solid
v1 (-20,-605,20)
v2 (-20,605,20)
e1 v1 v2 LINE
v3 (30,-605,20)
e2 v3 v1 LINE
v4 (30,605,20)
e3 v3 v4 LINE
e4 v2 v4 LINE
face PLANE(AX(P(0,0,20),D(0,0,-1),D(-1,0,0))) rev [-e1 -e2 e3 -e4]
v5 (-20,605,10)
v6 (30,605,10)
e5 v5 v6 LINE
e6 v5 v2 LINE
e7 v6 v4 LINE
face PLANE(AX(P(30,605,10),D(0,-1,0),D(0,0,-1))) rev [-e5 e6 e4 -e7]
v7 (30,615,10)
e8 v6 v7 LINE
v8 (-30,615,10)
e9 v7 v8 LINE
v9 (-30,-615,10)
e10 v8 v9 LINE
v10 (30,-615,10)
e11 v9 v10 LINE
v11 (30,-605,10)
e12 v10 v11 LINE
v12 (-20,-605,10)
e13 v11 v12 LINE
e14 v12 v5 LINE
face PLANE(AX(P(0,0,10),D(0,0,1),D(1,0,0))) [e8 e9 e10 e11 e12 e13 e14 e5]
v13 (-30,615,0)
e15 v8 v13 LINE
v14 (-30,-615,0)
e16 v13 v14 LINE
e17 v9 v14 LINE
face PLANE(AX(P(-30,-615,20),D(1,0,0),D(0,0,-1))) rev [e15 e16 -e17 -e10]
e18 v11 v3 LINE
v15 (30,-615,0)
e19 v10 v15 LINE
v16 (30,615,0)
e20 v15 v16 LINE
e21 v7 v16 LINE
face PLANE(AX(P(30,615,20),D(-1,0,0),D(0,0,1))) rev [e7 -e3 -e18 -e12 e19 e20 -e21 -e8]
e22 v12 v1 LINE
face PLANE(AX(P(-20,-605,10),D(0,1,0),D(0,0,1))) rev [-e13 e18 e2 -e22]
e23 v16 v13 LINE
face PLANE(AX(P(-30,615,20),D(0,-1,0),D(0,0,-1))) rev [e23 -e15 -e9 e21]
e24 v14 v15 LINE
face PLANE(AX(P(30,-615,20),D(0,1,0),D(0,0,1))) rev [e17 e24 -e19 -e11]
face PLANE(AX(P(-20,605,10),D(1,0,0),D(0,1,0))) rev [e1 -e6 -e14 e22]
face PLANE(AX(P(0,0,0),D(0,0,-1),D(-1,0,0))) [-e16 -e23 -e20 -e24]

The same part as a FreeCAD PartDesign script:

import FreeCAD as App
import Part
import Sketcher
from FreeCAD import Vector
Q = App.Units.Quantity

doc = App.newDocument("Part")
body = doc.addObject("PartDesign::Body", "Body")

sketch1 = body.newObject("Sketcher::SketchObject", "Sketch")
sketch1.AttachmentSupport = (doc.getObject("XY_Plane"), [""])
sketch1.MapMode = "FlatFace"
sketch1.addGeometry([
    Part.LineSegment(Vector(-30, 615, 0), Vector(-30, -615, 0)),
    Part.LineSegment(Vector(-30, -615, 0), Vector(30, -615, 0)),
    Part.LineSegment(Vector(30, -615, 0), Vector(30, 615, 0)),
    Part.LineSegment(Vector(30, 615, 0), Vector(-30, 615, 0)),
], False)
sketch1.addConstraint([
    Sketcher.Constraint("Coincident", 0, 2, 1, 1),
    Sketcher.Constraint("Coincident", 1, 2, 2, 1),
    Sketcher.Constraint("Coincident", 2, 2, 3, 1),
    Sketcher.Constraint("Coincident", 3, 2, 0, 1),
    Sketcher.Constraint("Vertical", 0),
    Sketcher.Constraint("Horizontal", 1),
    Sketcher.Constraint("Vertical", 2),
    Sketcher.Constraint("Horizontal", 3),
    Sketcher.Constraint("Symmetric", 0, 2, 2, 2, -1, 1),
    Sketcher.Constraint("DistanceX", 1, 1, 1, 2, Q("60 mm")),
    Sketcher.Constraint("DistanceY", 0, 2, 0, 1, Q("1230 mm")),
])
pad1 = body.newObject("PartDesign::Pad", "Pad")
pad1.Profile = sketch1
pad1.Length = 20

sketch2 = body.newObject("Sketcher::SketchObject", "Sketch001")
sketch2.AttachmentSupport = (doc.getObject("XY_Plane"), [""])
sketch2.MapMode = "FlatFace"
sketch2.AttachmentOffset = App.Placement(Vector(0, 0, 20), App.Rotation())
sketch2.addGeometry([
    Part.LineSegment(Vector(-20, 605, 0), Vector(30, 605, 0)),
    Part.LineSegment(Vector(30, 605, 0), Vector(30, 615, 0)),
    Part.LineSegment(Vector(30, 615, 0), Vector(-30, 615, 0)),
    Part.LineSegment(Vector(-30, 615, 0), Vector(-30, -615, 0)),
    Part.LineSegment(Vector(-30, -615, 0), Vector(30, -615, 0)),
    Part.LineSegment(Vector(30, -615, 0), Vector(30, -605, 0)),
    Part.LineSegment(Vector(30, -605, 0), Vector(-20, -605, 0)),
    Part.LineSegment(Vector(-20, -605, 0), Vector(-20, 605, 0)),
], False)
sketch2.addConstraint([
    Sketcher.Constraint("Coincident", 0, 2, 1, 1),
    Sketcher.Constraint("Coincident", 1, 2, 2, 1),
    Sketcher.Constraint("Coincident", 2, 2, 3, 1),
    Sketcher.Constraint("Coincident", 3, 2, 4, 1),
    Sketcher.Constraint("Coincident", 4, 2, 5, 1),
    Sketcher.Constraint("Coincident", 5, 2, 6, 1),
    Sketcher.Constraint("Coincident", 6, 2, 7, 1),
    Sketcher.Constraint("Coincident", 7, 2, 0, 1),
    Sketcher.Constraint("Horizontal", 0),
    Sketcher.Constraint("Vertical", 1),
    Sketcher.Constraint("Horizontal", 2),
    Sketcher.Constraint("Vertical", 3),
    Sketcher.Constraint("Horizontal", 4),
    Sketcher.Constraint("Vertical", 5),
    Sketcher.Constraint("Horizontal", 6),
    Sketcher.Constraint("Vertical", 7),
    Sketcher.Constraint("Symmetric", 1, 2, 3, 2, -1, 1),
    Sketcher.Constraint("Symmetric", 0, 2, 5, 2, -1),
    Sketcher.Constraint("DistanceX", 0, 1, 0, 2, Q("50 mm")),
    Sketcher.Constraint("DistanceX", 2, 2, 2, 1, Q("60 mm")),
    Sketcher.Constraint("DistanceY", 1, 1, 1, 2, Q("10 mm")),
    Sketcher.Constraint("DistanceY", 3, 2, 3, 1, Q("1230 mm")),
])
pocket1 = body.newObject("PartDesign::Pocket", "Pocket")
pocket1.Profile = sketch2
pocket1.Length = 10

doc.recompute()
